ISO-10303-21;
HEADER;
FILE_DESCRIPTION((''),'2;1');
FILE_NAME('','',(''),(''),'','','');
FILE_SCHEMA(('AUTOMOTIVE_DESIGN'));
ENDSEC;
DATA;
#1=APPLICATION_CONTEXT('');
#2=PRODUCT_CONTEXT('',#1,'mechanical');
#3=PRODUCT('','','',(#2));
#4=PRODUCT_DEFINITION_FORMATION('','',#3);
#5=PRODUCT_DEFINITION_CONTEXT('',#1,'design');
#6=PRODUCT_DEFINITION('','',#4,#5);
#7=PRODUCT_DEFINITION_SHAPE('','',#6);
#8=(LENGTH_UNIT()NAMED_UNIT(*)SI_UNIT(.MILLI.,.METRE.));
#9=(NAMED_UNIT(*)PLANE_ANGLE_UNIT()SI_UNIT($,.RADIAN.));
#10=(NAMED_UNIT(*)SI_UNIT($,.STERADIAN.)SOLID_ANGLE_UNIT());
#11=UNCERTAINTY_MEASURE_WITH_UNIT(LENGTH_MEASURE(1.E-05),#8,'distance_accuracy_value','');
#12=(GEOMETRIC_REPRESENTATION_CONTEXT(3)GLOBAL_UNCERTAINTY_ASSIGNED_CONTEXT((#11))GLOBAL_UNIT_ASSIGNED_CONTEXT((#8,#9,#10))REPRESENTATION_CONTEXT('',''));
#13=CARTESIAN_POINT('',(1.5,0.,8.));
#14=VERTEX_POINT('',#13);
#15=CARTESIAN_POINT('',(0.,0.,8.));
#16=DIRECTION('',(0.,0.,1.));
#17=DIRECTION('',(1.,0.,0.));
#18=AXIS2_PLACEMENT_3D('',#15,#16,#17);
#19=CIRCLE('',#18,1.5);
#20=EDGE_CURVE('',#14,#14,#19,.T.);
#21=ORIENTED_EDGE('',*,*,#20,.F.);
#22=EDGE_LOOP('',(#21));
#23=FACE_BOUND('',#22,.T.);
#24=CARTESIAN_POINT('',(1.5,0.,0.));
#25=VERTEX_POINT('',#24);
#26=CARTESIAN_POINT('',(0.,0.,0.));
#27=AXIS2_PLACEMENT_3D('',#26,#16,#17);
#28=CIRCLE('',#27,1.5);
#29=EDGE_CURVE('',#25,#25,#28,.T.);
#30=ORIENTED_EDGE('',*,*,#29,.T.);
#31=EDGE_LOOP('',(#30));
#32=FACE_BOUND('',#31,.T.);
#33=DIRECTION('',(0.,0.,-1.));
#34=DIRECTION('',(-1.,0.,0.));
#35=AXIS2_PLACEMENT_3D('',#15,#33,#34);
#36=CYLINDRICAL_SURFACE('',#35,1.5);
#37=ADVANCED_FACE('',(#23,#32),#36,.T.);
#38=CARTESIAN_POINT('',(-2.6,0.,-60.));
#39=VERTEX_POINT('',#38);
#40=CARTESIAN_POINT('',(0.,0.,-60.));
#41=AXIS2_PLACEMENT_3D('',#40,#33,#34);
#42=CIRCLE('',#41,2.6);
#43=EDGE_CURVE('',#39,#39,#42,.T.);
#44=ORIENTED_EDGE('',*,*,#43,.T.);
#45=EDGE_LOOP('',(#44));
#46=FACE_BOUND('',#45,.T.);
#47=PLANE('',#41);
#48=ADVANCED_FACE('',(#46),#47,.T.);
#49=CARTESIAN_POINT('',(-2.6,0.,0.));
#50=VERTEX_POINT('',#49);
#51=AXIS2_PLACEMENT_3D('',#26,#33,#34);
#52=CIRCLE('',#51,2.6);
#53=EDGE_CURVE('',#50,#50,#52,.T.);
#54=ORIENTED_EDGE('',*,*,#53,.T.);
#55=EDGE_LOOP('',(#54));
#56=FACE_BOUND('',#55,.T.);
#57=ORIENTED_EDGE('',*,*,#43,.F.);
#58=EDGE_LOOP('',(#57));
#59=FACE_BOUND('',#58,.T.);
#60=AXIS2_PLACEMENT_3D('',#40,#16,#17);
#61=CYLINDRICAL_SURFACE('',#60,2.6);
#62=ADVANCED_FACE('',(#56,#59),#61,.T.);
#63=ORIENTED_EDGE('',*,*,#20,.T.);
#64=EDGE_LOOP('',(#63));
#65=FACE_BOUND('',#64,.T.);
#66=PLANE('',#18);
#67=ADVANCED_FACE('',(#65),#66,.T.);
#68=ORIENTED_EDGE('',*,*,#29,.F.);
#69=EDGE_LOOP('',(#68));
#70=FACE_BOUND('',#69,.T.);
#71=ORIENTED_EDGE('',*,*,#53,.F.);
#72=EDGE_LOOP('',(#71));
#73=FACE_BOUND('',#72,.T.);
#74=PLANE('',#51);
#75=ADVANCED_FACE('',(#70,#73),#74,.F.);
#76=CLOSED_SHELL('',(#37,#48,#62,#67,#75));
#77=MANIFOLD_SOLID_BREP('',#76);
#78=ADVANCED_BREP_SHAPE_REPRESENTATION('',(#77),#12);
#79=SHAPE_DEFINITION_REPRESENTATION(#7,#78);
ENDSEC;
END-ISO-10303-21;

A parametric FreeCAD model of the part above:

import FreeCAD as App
import Part
import Sketcher
from FreeCAD import Vector

doc = App.newDocument("Part")
params = doc.addObject("Spreadsheet::Sheet", "Params")
for row, (alias, value) in enumerate([
    ("sketch1_diameter", "3 mm"),
    ("pad1_length", "8 mm"),
    ("sketch2_diameter", "5.2 mm"),
    ("pad2_length", "60 mm"),
], start=1):
    params.set(f"A{row}", alias)
    params.set(f"B{row}", "=" + value)
    params.setAlias(f"B{row}", alias)

body = doc.addObject("PartDesign::Body", "Body")

# Sketch on XY plane
sketch1 = doc.addObject("Sketcher::SketchObject", "Sketch")
body.addObject(sketch1)
sketch1.AttachmentSupport = (doc.XY_Plane, [""])
sketch1.MapMode = "FlatFace"
sketch1.addGeometry(Part.Circle(Vector(0, 0, 0), Vector(0, 0, 1), 1.5), False)
sketch1.addConstraint([
    Sketcher.Constraint("Coincident", 0, 3, -1, 1),
    Sketcher.Constraint("Diameter", 0, 3.0),
])
sketch1.setExpression("Constraints[1]", "Params.sketch1_diameter")
pad1 = doc.addObject("PartDesign::Pad", "Pad")
body.addObject(pad1)
pad1.Profile = sketch1
pad1.setExpression("Length", "Params.pad1_length")

# Sketch on XY plane
sketch2 = doc.addObject("Sketcher::SketchObject", "Sketch001")
body.addObject(sketch2)
sketch2.AttachmentSupport = (doc.XY_Plane, [""])
sketch2.MapMode = "FlatFace"
sketch2.addGeometry(Part.Circle(Vector(0, 0, 0), Vector(0, 0, 1), 2.6), False)
sketch2.addConstraint([
    Sketcher.Constraint("Coincident", 0, 3, -1, 1),
    Sketcher.Constraint("Diameter", 0, 5.2),
])
sketch2.setExpression("Constraints[1]", "Params.sketch2_diameter")
pad2 = doc.addObject("PartDesign::Pad", "Pad001")
body.addObject(pad2)
pad2.Profile = sketch2
pad2.setExpression("Length", "Params.pad2_length")
pad2.Reversed = True

doc.recompute()
